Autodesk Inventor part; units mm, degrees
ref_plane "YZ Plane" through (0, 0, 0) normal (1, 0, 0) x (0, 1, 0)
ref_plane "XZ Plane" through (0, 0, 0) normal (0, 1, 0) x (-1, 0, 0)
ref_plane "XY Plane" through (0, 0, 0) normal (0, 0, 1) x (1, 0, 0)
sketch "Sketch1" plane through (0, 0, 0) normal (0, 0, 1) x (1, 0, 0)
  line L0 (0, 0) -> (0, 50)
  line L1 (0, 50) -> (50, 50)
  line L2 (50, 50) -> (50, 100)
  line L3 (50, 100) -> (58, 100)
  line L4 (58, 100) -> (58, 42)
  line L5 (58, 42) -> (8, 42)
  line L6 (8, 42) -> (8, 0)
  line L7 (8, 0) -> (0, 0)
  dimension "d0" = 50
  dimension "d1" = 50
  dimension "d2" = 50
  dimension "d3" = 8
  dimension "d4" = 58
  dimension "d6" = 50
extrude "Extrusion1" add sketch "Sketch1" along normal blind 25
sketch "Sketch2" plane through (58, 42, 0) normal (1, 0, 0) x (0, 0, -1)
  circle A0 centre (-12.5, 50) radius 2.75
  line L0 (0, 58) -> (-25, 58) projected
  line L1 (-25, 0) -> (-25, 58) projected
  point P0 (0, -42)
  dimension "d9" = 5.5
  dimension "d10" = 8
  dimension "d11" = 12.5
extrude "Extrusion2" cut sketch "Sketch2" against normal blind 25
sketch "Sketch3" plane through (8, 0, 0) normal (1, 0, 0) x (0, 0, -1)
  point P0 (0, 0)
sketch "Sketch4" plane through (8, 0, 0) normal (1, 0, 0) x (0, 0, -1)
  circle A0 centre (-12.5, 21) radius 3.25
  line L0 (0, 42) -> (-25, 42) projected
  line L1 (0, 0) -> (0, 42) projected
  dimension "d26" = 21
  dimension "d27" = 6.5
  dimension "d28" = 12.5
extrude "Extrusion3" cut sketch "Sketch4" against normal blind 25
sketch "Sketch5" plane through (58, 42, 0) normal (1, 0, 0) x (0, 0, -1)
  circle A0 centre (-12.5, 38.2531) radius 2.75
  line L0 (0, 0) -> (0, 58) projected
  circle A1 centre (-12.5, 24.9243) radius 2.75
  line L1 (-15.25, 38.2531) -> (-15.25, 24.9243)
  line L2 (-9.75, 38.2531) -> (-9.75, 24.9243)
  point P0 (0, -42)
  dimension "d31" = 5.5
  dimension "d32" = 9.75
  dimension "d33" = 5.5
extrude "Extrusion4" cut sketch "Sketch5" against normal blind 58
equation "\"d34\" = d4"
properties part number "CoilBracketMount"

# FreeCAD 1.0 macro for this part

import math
import FreeCAD as App
import Part
import Sketcher
Q = App.Units.Quantity


def add_polygon(sketch, points):
    """Adds a closed chain of lines whose ends are joined by coincident constraints."""
    first, n = sketch.GeometryCount, len(points)
    for a, b in zip(points, points[1:] + points[:1]):
        sketch.addGeometry(Part.LineSegment(App.Vector(*a, 0), App.Vector(*b, 0)), False)
    for i in range(n):
        sketch.addConstraint(Sketcher.Constraint("Coincident", first + i, 2, first + (i + 1) % n, 1))

doc = App.newDocument("Part")
body = doc.addObject("PartDesign::Body", "Body")

# Sketch on XY plane
sketch1 = body.newObject("Sketcher::SketchObject", "Sketch")
sketch1.AttachmentSupport = (doc.getObject("XY_Plane"), [""])
sketch1.MapMode = "FlatFace"
add_polygon(sketch1, [(0, 50), (0, 0), (8, 0), (8, 42), (58, 42), (58, 100), (50, 100), (50, 50)])  # lines 0-7
sketch1.addConstraint(Sketcher.Constraint("Vertical", 0))
sketch1.addConstraint(Sketcher.Constraint("Horizontal", 1))
sketch1.addConstraint(Sketcher.Constraint("Vertical", 2))
sketch1.addConstraint(Sketcher.Constraint("Horizontal", 3))
sketch1.addConstraint(Sketcher.Constraint("Vertical", 4))
sketch1.addConstraint(Sketcher.Constraint("Horizontal", 5))
sketch1.addConstraint(Sketcher.Constraint("Vertical", 6))
sketch1.addConstraint(Sketcher.Constraint("Horizontal", 7))
sketch1.addConstraint(Sketcher.Constraint("Coincident", 0, 2, -1, 1))
sketch1.addConstraint(Sketcher.Constraint("Equal", 1, 5))
sketch1.addConstraint(Sketcher.Constraint("Equal", 7, 0))
sketch1.addConstraint(Sketcher.Constraint("Equal", 0, 6))
sketch1.addConstraint(Sketcher.Constraint("DistanceX", 1, 1, 1, 2, Q("8 mm")))
sketch1.addConstraint(Sketcher.Constraint("DistanceX", 3, 1, 3, 2, Q("50 mm")))
sketch1.addConstraint(Sketcher.Constraint("DistanceY", 4, 1, 4, 2, Q("58 mm")))
pad1 = body.newObject("PartDesign::Pad", "Pad")
pad1.Profile = sketch1
pad1.Length = 25

# Sketch on YZ plane
sketch2 = body.newObject("Sketcher::SketchObject", "Sketch001")
sketch2.AttachmentSupport = (doc.getObject("YZ_Plane"), [""])
sketch2.MapMode = "FlatFace"
sketch2.AttachmentOffset = App.Placement(App.Vector(0, 0, 58), App.Rotation())
sketch2.addGeometry(Part.Circle(App.Vector(92, 12.5, 0), App.Vector(0, 0, 1), 2.75), False)
sketch2.addConstraint(Sketcher.Constraint("Diameter", 0, Q("5.5 mm")))
sketch2.addConstraint(Sketcher.Constraint("DistanceY", -1, 1, 0, 3, Q("12.5 mm")))
sketch2.addConstraint(Sketcher.Constraint("DistanceX", -1, 1, 0, 3, Q("92 mm")))
pocket1 = body.newObject("PartDesign::Pocket", "Pocket")
pocket1.Profile = sketch2
pocket1.Length = 25

# Sketch on YZ plane
sketch3 = body.newObject("Sketcher::SketchObject", "Sketch002")
sketch3.AttachmentSupport = (doc.getObject("YZ_Plane"), [""])
sketch3.MapMode = "FlatFace"
sketch3.AttachmentOffset = App.Placement(App.Vector(0, 0, 8), App.Rotation())
sketch3.addGeometry(Part.Circle(App.Vector(21, 12.5, 0), App.Vector(0, 0, 1), 3.25), False)
sketch3.addConstraint(Sketcher.Constraint("Diameter", 0, Q("6.5 mm")))
sketch3.addConstraint(Sketcher.Constraint("DistanceX", -1, 1, 0, 3, Q("21 mm")))
sketch3.addConstraint(Sketcher.Constraint("DistanceY", -1, 1, 0, 3, Q("12.5 mm")))
pocket2 = body.newObject("PartDesign::Pocket", "Pocket001")
pocket2.Profile = sketch3
pocket2.Length = 25

# Sketch on YZ plane
sketch4 = body.newObject("Sketcher::SketchObject", "Sketch003")
sketch4.AttachmentSupport = (doc.getObject("YZ_Plane"), [""])
sketch4.MapMode = "FlatFace"
sketch4.AttachmentOffset = App.Placement(App.Vector(0, 0, 58), App.Rotation())
sketch4.addGeometry(Part.ArcOfCircle(Part.Circle(App.Vector(80.2531, 12.5, 0), App.Vector(0, 0, 1), 2.75), math.radians(-90), math.radians(90)), False)
sketch4.addGeometry(Part.LineSegment(App.Vector(80.2531, 15.25, 0), App.Vector(66.9243, 15.25, 0)), False)
sketch4.addGeometry(Part.ArcOfCircle(Part.Circle(App.Vector(66.9243, 12.5, 0), App.Vector(0, 0, 1), 2.75), math.radians(90), math.radians(270)), False)
sketch4.addGeometry(Part.LineSegment(App.Vector(66.9243, 9.75, 0), App.Vector(80.2531, 9.75, 0)), False)
sketch4.addConstraint(Sketcher.Constraint("Tangent", 0, 2, 1, 1))
sketch4.addConstraint(Sketcher.Constraint("Tangent", 1, 2, 2, 1))
sketch4.addConstraint(Sketcher.Constraint("Tangent", 2, 2, 3, 1))
sketch4.addConstraint(Sketcher.Constraint("Tangent", 3, 2, 0, 1))
sketch4.addConstraint(Sketcher.Constraint("Horizontal", 1))
sketch4.addConstraint(Sketcher.Constraint("Horizontal", 3))
sketch4.addConstraint(Sketcher.Constraint("Radius", 0, Q("2.75 mm")))
sketch4.addConstraint(Sketcher.Constraint("DistanceY", -1, 1, 2, 2, Q("9.75 mm")))
sketch4.addConstraint(Sketcher.Constraint("DistanceX", 1, 2, 1, 1, Q("13.3288 mm")))
sketch4.addConstraint(Sketcher.Constraint("DistanceX", -1, 1, 0, 3, Q("80.253 mm")))
pocket3 = body.newObject("PartDesign::Pocket", "Pocket002")
pocket3.Profile = sketch4
pocket3.Length = 58

doc.recompute()
